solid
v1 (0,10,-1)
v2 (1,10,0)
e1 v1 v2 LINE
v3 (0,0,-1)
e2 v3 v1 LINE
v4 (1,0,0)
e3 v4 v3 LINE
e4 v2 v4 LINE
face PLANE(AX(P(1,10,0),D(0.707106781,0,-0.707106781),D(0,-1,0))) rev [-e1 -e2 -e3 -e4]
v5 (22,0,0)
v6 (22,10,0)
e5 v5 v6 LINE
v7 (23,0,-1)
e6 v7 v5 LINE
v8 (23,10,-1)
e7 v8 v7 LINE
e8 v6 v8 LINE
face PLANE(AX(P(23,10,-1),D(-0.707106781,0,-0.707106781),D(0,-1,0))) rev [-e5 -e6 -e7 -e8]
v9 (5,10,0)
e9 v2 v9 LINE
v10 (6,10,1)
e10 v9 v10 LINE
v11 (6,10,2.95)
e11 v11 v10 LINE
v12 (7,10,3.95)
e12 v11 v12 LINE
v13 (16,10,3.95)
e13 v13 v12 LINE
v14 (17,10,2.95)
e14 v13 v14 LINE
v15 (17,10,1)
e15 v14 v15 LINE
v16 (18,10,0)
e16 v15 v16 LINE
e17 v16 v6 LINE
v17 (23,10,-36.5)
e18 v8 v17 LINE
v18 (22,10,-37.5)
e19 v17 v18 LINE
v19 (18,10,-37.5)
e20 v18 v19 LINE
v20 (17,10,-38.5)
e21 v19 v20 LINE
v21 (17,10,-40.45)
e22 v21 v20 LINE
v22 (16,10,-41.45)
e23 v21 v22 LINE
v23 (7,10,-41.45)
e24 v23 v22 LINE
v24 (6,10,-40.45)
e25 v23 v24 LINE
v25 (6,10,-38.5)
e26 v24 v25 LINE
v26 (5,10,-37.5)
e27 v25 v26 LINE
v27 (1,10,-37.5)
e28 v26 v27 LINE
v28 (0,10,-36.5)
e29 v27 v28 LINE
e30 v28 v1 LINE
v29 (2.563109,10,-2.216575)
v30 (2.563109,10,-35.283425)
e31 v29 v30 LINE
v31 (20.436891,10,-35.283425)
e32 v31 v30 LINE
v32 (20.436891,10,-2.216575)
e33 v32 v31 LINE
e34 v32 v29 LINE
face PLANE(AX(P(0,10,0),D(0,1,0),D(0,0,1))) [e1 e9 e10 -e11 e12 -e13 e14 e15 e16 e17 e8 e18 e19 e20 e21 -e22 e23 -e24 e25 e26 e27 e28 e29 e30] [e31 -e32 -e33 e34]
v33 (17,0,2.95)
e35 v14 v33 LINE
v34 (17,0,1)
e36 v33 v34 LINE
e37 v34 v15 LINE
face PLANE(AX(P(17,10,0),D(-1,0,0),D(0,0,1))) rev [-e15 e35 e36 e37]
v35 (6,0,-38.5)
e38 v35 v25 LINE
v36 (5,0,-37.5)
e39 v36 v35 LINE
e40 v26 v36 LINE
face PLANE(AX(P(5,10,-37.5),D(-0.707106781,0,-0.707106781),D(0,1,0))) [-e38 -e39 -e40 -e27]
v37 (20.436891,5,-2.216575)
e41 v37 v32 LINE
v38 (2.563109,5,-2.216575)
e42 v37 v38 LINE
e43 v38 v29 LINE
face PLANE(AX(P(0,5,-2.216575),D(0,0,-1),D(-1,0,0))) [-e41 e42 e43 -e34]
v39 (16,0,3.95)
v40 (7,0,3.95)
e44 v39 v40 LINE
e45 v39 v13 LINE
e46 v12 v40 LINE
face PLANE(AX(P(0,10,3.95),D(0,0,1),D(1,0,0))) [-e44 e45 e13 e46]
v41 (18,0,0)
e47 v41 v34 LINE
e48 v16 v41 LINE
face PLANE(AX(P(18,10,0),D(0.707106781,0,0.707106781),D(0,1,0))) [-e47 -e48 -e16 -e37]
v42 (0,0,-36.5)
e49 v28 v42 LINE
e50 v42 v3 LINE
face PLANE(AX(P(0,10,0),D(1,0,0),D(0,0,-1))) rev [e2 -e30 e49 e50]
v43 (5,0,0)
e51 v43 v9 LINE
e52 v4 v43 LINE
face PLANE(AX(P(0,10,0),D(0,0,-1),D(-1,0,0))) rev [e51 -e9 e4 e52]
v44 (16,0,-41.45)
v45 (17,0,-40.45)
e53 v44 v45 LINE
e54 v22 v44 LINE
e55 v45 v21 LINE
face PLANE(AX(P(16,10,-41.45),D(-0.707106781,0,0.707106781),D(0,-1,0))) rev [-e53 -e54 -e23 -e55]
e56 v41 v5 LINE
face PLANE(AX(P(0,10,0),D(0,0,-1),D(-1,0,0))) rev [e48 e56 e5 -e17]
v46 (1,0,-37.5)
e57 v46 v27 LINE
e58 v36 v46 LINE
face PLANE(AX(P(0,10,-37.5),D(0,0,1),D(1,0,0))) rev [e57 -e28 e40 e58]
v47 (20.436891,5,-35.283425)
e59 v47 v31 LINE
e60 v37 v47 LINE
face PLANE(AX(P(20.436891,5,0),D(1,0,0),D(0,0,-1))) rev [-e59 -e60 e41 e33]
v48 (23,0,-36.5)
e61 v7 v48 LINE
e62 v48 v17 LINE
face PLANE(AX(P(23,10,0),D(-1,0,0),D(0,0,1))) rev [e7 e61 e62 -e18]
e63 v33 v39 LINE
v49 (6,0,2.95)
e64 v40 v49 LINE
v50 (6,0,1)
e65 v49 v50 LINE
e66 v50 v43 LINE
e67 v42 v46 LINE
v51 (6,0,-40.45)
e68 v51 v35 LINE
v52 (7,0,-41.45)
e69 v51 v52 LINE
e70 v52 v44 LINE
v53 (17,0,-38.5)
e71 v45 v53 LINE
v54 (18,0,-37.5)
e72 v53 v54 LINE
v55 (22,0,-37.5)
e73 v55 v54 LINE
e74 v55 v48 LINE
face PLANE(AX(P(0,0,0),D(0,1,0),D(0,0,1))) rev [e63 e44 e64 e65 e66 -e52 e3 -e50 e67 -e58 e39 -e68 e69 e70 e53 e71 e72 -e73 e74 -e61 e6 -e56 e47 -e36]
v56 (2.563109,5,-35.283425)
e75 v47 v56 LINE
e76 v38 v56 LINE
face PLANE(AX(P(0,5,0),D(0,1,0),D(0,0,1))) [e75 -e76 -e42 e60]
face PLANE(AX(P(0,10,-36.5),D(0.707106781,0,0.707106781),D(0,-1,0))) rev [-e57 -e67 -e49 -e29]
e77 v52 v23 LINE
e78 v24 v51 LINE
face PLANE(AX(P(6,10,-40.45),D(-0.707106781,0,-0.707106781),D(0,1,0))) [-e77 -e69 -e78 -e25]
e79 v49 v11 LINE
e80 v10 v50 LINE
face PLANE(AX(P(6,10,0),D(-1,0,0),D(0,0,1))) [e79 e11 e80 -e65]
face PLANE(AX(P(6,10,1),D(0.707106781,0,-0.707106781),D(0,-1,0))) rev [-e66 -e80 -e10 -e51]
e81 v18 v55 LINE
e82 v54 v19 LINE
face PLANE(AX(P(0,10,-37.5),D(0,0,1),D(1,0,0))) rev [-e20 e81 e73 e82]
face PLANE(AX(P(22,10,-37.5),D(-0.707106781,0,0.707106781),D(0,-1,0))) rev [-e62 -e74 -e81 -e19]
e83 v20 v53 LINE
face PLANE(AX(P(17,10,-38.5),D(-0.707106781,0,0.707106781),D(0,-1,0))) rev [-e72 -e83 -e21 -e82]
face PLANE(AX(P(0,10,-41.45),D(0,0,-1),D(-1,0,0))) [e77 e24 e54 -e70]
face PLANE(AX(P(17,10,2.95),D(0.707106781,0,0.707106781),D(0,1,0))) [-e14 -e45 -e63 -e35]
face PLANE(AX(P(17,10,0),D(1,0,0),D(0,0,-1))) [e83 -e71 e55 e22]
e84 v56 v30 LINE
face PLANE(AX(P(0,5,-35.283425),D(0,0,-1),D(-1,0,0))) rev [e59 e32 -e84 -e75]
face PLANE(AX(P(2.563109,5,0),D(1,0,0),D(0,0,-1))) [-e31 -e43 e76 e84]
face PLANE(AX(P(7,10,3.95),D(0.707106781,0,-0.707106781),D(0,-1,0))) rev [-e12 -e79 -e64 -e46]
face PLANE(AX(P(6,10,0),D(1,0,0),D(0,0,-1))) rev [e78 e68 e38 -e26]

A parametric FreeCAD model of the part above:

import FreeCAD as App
import Part
import Sketcher

V = App.Vector
Q = App.Units.Quantity


def edges_at(feature, points):
    """Names of the edges that pass closest to the given points."""
    edges = feature.Shape.Edges
    near = lambda p: min(range(len(edges)), key=lambda i: edges[i].distToShape(Part.Vertex(*p))[0])
    return sorted({f"Edge{near(p) + 1}" for p in points})

doc = App.newDocument("Part")
body = doc.addObject("PartDesign::Body", "Body")

sketch1 = doc.addObject("Sketcher::SketchObject", "Sketch")
body.addObject(sketch1)
sketch1.AttachmentSupport = (doc.XZ_Plane, [""])
sketch1.MapMode = "FlatFace"
sketch1.addGeometry([
    Part.LineSegment(V(0, -37.5, 0), V(0, 0, 0)),
    Part.LineSegment(V(0, 0, 0), V(6, 0, 0)),
    Part.LineSegment(V(6, 0, 0), V(6, 4, 0)),
    Part.LineSegment(V(6, 4, 0), V(17, 4, 0)),
    Part.LineSegment(V(17, 4, 0), V(17, 0, 0)),
    Part.LineSegment(V(17, 0, 0), V(23, 0, 0)),
    Part.LineSegment(V(23, 0, 0), V(23, -37.5, 0)),
    Part.LineSegment(V(23, -37.5, 0), V(17, -37.5, 0)),
    Part.LineSegment(V(17, -37.5, 0), V(17, -41.5, 0)),
    Part.LineSegment(V(17, -41.5, 0), V(6, -41.5, 0)),
    Part.LineSegment(V(6, -41.5, 0), V(6, -37.5, 0)),
    Part.LineSegment(V(6, -37.5, 0), V(0, -37.5, 0)),
], False)
sketch1.addConstraint([
    Sketcher.Constraint("Coincident", 0, 2, 1, 1),
    Sketcher.Constraint("Coincident", 1, 2, 2, 1),
    Sketcher.Constraint("Coincident", 2, 2, 3, 1),
    Sketcher.Constraint("Coincident", 3, 2, 4, 1),
    Sketcher.Constraint("Coincident", 4, 2, 5, 1),
    Sketcher.Constraint("Coincident", 5, 2, 6, 1),
    Sketcher.Constraint("Coincident", 6, 2, 7, 1),
    Sketcher.Constraint("Coincident", 7, 2, 8, 1),
    Sketcher.Constraint("Coincident", 8, 2, 9, 1),
    Sketcher.Constraint("Coincident", 9, 2, 10, 1),
    Sketcher.Constraint("Coincident", 10, 2, 11, 1),
    Sketcher.Constraint("Coincident", 11, 2, 0, 1),
    Sketcher.Constraint("Vertical", 0),
    Sketcher.Constraint("Horizontal", 1),
    Sketcher.Constraint("Vertical", 2),
    Sketcher.Constraint("Horizontal", 3),
    Sketcher.Constraint("Vertical", 4),
    Sketcher.Constraint("Horizontal", 5),
    Sketcher.Constraint("Vertical", 6),
    Sketcher.Constraint("Horizontal", 7),
    Sketcher.Constraint("Vertical", 8),
    Sketcher.Constraint("Horizontal", 9),
    Sketcher.Constraint("Vertical", 10),
    Sketcher.Constraint("Horizontal", 11),
    Sketcher.Constraint("Coincident", 0, 2, -1, 1),
    Sketcher.Constraint("PointOnObject", 4, 2, -1),
    Sketcher.Constraint("Horizontal", 7, 2, 10, 2),
    Sketcher.Constraint("Vertical", 4, 2, 7, 2),
    Sketcher.Constraint("Vertical", 2, 2, 9, 2),
    Sketcher.Constraint("Equal", 1, 5),
    Sketcher.Constraint("Equal", 4, 8),
    Sketcher.Constraint("DistanceX", 1, 1, 1, 2, Q("6 mm")),
    Sketcher.Constraint("DistanceX", 3, 1, 3, 2, Q("11 mm")),
    Sketcher.Constraint("DistanceY", 0, 1, 0, 2, Q("37.5 mm")),
    Sketcher.Constraint("DistanceY", 2, 1, 2, 2, Q("3.95 mm")),
])
pad1 = doc.addObject("PartDesign::Pad", "Pad")
body.addObject(pad1)
pad1.Profile = sketch1
pad1.Length = 10
pad1.Reversed = True
doc.recompute()

chamfer = doc.addObject("PartDesign::Chamfer", "Chamfer")
body.addObject(chamfer)
chamfer.Base = (pad1, edges_at(pad1, [
    (6, 5, 3.95),
    (6, 5, 0),
    (0, 5, 0),
    (0, 5, -37.5),
    (6, 5, -37.5),
    (6, 5, -41.45),
    (17, 5, -41.45),
    (17, 5, -37.5),
    (23, 5, -37.5),
    (23, 5, 0),
    (17, 5, 0),
    (17, 5, 3.95),
]))
chamfer.Size = 1

sketch2 = doc.addObject("Sketcher::SketchObject", "Sketch001")
body.addObject(sketch2)
sketch2.AttachmentSupport = (doc.XZ_Plane, [""])
sketch2.MapMode = "FlatFace"
sketch2.AttachmentOffset = App.Placement(V(0, 0, -10), App.Rotation())
sketch2.addGeometry([
    Part.LineSegment(V(3, -2, 0), V(20, -2, 0)),
    Part.LineSegment(V(20, -2, 0), V(20, -35, 0)),
    Part.LineSegment(V(20, -35, 0), V(3, -35, 0)),
    Part.LineSegment(V(3, -35, 0), V(3, -2, 0)),
], False)
sketch2.addConstraint([
    Sketcher.Constraint("Coincident", 0, 2, 1, 1),
    Sketcher.Constraint("Coincident", 1, 2, 2, 1),
    Sketcher.Constraint("Coincident", 2, 2, 3, 1),
    Sketcher.Constraint("Coincident", 3, 2, 0, 1),
    Sketcher.Constraint("Horizontal", 0),
    Sketcher.Constraint("Vertical", 1),
    Sketcher.Constraint("Horizontal", 2),
    Sketcher.Constraint("Vertical", 3),
    Sketcher.Constraint("DistanceY", 1, 2, 1, 1, Q("33.06685 mm")),
    Sketcher.Constraint("DistanceX", 0, 1, 0, 2, Q("17.873783 mm")),
    Sketcher.Constraint("DistanceX", -1, 1, 0, 2, Q("20.436891 mm")),
    Sketcher.Constraint("DistanceY", 0, 2, -1, 1, Q("2.216575 mm")),
])
pocket1 = doc.addObject("PartDesign::Pocket", "Pocket")
body.addObject(pocket1)
pocket1.Profile = sketch2
pocket1.Length = 5
pocket1.Reversed = True

doc.recompute()
